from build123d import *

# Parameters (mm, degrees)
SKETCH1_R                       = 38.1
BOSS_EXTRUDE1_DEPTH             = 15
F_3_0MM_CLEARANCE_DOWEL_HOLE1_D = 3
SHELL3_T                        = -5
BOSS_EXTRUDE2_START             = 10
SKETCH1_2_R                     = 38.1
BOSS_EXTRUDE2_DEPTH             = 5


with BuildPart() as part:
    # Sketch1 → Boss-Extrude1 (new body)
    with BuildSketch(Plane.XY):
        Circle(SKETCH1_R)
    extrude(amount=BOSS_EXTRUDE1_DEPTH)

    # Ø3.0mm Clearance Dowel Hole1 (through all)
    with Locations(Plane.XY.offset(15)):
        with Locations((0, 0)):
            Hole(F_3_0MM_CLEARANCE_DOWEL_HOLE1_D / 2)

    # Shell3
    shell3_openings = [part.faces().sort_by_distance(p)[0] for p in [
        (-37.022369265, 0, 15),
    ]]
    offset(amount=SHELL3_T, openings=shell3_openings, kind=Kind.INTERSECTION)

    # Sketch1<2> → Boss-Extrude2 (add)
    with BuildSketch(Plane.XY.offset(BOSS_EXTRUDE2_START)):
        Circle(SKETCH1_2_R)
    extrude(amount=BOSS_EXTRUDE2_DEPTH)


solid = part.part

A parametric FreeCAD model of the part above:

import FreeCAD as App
import Part
import Sketcher


def faces_at(feature, points):
    """Names of the faces that lie closest to the given points."""
    faces = feature.Shape.Faces
    near = lambda p: min(range(len(faces)), key=lambda i: faces[i].distToShape(Part.Vertex(*p))[0])
    return sorted({f"Face{near(p) + 1}" for p in points})

doc = App.newDocument("Part")
body = doc.addObject("PartDesign::Body", "Body")

# Sketch on XY plane
sketch1 = doc.addObject("Sketcher::SketchObject", "Sketch")
body.addObject(sketch1)
sketch1.AttachmentSupport = (doc.XY_Plane, [""])
sketch1.MapMode = "FlatFace"
sketch1.addGeometry(Part.Circle(App.Vector(0, 0, 0), App.Vector(0, 0, 1), 38), False)
sketch1.addConstraint([
    Sketcher.Constraint("Coincident", 0, 3, -1, 1),
    Sketcher.Constraint("Diameter", 0, 76.2),
])
pad1 = doc.addObject("PartDesign::Pad", "Pad")
body.addObject(pad1)
pad1.Profile = sketch1
pad1.Length = 15

# Sketch on XY plane
sketch2 = doc.addObject("Sketcher::SketchObject", "Sketch001")
body.addObject(sketch2)
sketch2.AttachmentSupport = (doc.XY_Plane, [""])
sketch2.MapMode = "FlatFace"
sketch2.AttachmentOffset = App.Placement(App.Vector(0, 0, 15), App.Rotation())
sketch2.addGeometry(Part.Circle(App.Vector(0, 0, 0), App.Vector(0, 0, 1), 1.5), False)
sketch2.addConstraint([
    Sketcher.Constraint("Coincident", 0, 3, -1, 1),
    Sketcher.Constraint("Diameter", 0, 3.0),
])
doc.recompute()
hole = doc.addObject("PartDesign::Hole", "Hole")
body.addObject(hole)
hole.Profile = sketch2
hole.ThreadType = "None"
hole.Diameter = 3
hole.DepthType = "ThroughAll"
doc.recompute()

thickness = doc.addObject("PartDesign::Thickness", "Thickness")
body.addObject(thickness)
thickness.Base = (hole, faces_at(hole, [(-15.24, -15.24, 15)]))
thickness.Value = 5
thickness.Reversed = True
thickness.Join = "Intersection"

# Sketch on XY plane
sketch3 = doc.addObject("Sketcher::SketchObject", "Sketch002")
body.addObject(sketch3)
sketch3.AttachmentSupport = (doc.XY_Plane, [""])
sketch3.MapMode = "FlatFace"
sketch3.AttachmentOffset = App.Placement(App.Vector(0, 0, 10), App.Rotation())
sketch3.addGeometry(Part.Circle(App.Vector(0, 0, 0), App.Vector(0, 0, 1), 38), False)
sketch3.addConstraint([
    Sketcher.Constraint("Coincident", 0, 3, -1, 1),
    Sketcher.Constraint("Diameter", 0, 76.2),
])
pad2 = doc.addObject("PartDesign::Pad", "Pad001")
body.addObject(pad2)
pad2.Profile = sketch3
pad2.Length = 5

doc.recompute()
